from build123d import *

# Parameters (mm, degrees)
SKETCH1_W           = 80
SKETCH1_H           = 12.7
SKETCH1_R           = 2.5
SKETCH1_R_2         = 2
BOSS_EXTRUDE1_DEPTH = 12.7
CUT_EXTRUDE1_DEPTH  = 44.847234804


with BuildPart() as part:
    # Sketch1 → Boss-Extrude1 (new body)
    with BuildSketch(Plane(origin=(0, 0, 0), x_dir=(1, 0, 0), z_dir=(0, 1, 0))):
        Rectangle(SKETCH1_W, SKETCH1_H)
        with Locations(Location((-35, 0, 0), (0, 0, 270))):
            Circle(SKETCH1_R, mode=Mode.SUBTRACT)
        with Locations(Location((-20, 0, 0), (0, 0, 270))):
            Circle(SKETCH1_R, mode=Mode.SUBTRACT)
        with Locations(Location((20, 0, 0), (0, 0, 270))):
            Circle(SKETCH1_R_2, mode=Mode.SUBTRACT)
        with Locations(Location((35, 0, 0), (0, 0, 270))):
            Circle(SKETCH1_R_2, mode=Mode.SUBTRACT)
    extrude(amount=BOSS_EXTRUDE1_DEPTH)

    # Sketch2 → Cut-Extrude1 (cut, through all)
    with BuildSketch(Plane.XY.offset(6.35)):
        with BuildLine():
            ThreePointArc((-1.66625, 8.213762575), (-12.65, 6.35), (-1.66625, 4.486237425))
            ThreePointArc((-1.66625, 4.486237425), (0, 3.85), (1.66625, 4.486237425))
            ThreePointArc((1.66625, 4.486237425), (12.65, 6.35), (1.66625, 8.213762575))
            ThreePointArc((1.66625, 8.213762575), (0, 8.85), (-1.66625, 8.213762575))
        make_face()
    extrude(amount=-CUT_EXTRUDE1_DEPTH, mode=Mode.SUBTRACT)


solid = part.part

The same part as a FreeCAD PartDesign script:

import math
import FreeCAD as App
import Part
import Sketcher


def add_polygon(sketch, points):
    """Adds a closed chain of lines whose ends are joined by coincident constraints."""
    first, n = sketch.GeometryCount, len(points)
    for a, b in zip(points, points[1:] + points[:1]):
        sketch.addGeometry(Part.LineSegment(App.Vector(*a, 0), App.Vector(*b, 0)), False)
    for i in range(n):
        sketch.addConstraint(Sketcher.Constraint("Coincident", first + i, 2, first + (i + 1) % n, 1))

doc = App.newDocument("Part")
body = doc.addObject("PartDesign::Body", "Body")

# Sketch on XZ plane
sketch1 = body.newObject("Sketcher::SketchObject", "Sketch")
sketch1.AttachmentSupport = (doc.getObject("XZ_Plane"), [""])
sketch1.MapMode = "FlatFace"
add_polygon(sketch1, [(-40, -6.35), (-40, 6.35), (40, 6.35), (40, -6.35)])  # lines 0-3
sketch1.addGeometry(Part.Circle(App.Vector(-35, 0, 0), App.Vector(0, 0, 1), 2.5), False)  # 4
sketch1.addGeometry(Part.Circle(App.Vector(-20, 0, 0), App.Vector(0, 0, 1), 2.5), False)  # 5
sketch1.addGeometry(Part.Circle(App.Vector(20, 0, 0), App.Vector(0, 0, 1), 2), False)  # 6
sketch1.addGeometry(Part.Circle(App.Vector(35, 0, 0), App.Vector(0, 0, 1), 2), False)  # 7
sketch1.addConstraint([
    Sketcher.Constraint("Vertical", 0),
    Sketcher.Constraint("Horizontal", 1),
    Sketcher.Constraint("Vertical", 2),
    Sketcher.Constraint("Horizontal", 3),
    Sketcher.Constraint("Equal", 4, 5),
    Sketcher.Constraint("Equal", 6, 7),
    Sketcher.Constraint("Symmetric", 5, 3, 6, 3, -1, 1),
    Sketcher.Constraint("Symmetric", 4, 3, 7, 3, -1, 1),
    Sketcher.Constraint("Symmetric", 0, 2, 2, 2, -1, 1),
    Sketcher.Constraint("PointOnObject", 4, 3, -1),
    Sketcher.Constraint("PointOnObject", 5, 3, -1),
    Sketcher.Constraint("Diameter", 4, 5.0),
    Sketcher.Constraint("Diameter", 6, 4.0),
    Sketcher.Constraint("DistanceX", 1, 1, 1, 2, 80.0),
    Sketcher.Constraint("DistanceY", 0, 1, 0, 2, 12.7),
    Sketcher.Constraint("DistanceX", 4, 3, -1, 1, 35.0),
    Sketcher.Constraint("DistanceX", 5, 3, -1, 1, 20.0),
])
pad1 = body.newObject("PartDesign::Pad", "Pad")
pad1.Profile = sketch1
pad1.Length = 12.7
pad1.Reversed = True

# Sketch on XY plane
sketch2 = body.newObject("Sketcher::SketchObject", "Sketch001")
sketch2.AttachmentSupport = (doc.getObject("XY_Plane"), [""])
sketch2.MapMode = "FlatFace"
sketch2.AttachmentOffset = App.Placement(App.Vector(0, 0, 6.35), App.Rotation())
sketch2.addGeometry([
    Part.ArcOfCircle(Part.Circle(App.Vector(-7, 6.35, 0), App.Vector(0, 0, 1), 5.65), math.radians(19.260854), math.radians(340.739146)),
    Part.ArcOfCircle(Part.Circle(App.Vector(0, 6.35, 0), App.Vector(0, 0, 1), 2.5), math.radians(-131.797504), math.radians(-48.202496)),
    Part.ArcOfCircle(Part.Circle(App.Vector(7, 6.35, 0), App.Vector(0, 0, 1), 5.65), math.radians(-160.739146), math.radians(160.739146)),
    Part.ArcOfCircle(Part.Circle(App.Vector(0, 6.35, 0), App.Vector(0, 0, 1), 2.5), math.radians(48.202496), math.radians(131.797504)),
], False)
sketch2.addConstraint([
    Sketcher.Constraint("Coincident", 0, 2, 1, 1),
    Sketcher.Constraint("Coincident", 1, 2, 2, 1),
    Sketcher.Constraint("Coincident", 2, 2, 3, 1),
    Sketcher.Constraint("Coincident", 3, 2, 0, 1),
    Sketcher.Constraint("Coincident", 3, 3, 1, 3),
    Sketcher.Constraint("Equal", 0, 2),
    Sketcher.Constraint("Equal", 1, 3),
    Sketcher.Constraint("Symmetric", 0, 3, 2, 3, -2),
    Sketcher.Constraint("PointOnObject", 1, 3, -2),
    Sketcher.Constraint("Horizontal", 0, 3, 1, 3),
    Sketcher.Constraint("Radius", 1, 2.5),
    Sketcher.Constraint("Radius", 0, 5.65),
    Sketcher.Constraint("DistanceX", 0, 3, -1, 1, 7.0),
    Sketcher.Constraint("DistanceY", -1, 1, 0, 3, 6.35),
])
pocket1 = body.newObject("PartDesign::Pocket", "Pocket")
pocket1.Profile = sketch2
pocket1.Type = "ThroughAll"

doc.recompute()
